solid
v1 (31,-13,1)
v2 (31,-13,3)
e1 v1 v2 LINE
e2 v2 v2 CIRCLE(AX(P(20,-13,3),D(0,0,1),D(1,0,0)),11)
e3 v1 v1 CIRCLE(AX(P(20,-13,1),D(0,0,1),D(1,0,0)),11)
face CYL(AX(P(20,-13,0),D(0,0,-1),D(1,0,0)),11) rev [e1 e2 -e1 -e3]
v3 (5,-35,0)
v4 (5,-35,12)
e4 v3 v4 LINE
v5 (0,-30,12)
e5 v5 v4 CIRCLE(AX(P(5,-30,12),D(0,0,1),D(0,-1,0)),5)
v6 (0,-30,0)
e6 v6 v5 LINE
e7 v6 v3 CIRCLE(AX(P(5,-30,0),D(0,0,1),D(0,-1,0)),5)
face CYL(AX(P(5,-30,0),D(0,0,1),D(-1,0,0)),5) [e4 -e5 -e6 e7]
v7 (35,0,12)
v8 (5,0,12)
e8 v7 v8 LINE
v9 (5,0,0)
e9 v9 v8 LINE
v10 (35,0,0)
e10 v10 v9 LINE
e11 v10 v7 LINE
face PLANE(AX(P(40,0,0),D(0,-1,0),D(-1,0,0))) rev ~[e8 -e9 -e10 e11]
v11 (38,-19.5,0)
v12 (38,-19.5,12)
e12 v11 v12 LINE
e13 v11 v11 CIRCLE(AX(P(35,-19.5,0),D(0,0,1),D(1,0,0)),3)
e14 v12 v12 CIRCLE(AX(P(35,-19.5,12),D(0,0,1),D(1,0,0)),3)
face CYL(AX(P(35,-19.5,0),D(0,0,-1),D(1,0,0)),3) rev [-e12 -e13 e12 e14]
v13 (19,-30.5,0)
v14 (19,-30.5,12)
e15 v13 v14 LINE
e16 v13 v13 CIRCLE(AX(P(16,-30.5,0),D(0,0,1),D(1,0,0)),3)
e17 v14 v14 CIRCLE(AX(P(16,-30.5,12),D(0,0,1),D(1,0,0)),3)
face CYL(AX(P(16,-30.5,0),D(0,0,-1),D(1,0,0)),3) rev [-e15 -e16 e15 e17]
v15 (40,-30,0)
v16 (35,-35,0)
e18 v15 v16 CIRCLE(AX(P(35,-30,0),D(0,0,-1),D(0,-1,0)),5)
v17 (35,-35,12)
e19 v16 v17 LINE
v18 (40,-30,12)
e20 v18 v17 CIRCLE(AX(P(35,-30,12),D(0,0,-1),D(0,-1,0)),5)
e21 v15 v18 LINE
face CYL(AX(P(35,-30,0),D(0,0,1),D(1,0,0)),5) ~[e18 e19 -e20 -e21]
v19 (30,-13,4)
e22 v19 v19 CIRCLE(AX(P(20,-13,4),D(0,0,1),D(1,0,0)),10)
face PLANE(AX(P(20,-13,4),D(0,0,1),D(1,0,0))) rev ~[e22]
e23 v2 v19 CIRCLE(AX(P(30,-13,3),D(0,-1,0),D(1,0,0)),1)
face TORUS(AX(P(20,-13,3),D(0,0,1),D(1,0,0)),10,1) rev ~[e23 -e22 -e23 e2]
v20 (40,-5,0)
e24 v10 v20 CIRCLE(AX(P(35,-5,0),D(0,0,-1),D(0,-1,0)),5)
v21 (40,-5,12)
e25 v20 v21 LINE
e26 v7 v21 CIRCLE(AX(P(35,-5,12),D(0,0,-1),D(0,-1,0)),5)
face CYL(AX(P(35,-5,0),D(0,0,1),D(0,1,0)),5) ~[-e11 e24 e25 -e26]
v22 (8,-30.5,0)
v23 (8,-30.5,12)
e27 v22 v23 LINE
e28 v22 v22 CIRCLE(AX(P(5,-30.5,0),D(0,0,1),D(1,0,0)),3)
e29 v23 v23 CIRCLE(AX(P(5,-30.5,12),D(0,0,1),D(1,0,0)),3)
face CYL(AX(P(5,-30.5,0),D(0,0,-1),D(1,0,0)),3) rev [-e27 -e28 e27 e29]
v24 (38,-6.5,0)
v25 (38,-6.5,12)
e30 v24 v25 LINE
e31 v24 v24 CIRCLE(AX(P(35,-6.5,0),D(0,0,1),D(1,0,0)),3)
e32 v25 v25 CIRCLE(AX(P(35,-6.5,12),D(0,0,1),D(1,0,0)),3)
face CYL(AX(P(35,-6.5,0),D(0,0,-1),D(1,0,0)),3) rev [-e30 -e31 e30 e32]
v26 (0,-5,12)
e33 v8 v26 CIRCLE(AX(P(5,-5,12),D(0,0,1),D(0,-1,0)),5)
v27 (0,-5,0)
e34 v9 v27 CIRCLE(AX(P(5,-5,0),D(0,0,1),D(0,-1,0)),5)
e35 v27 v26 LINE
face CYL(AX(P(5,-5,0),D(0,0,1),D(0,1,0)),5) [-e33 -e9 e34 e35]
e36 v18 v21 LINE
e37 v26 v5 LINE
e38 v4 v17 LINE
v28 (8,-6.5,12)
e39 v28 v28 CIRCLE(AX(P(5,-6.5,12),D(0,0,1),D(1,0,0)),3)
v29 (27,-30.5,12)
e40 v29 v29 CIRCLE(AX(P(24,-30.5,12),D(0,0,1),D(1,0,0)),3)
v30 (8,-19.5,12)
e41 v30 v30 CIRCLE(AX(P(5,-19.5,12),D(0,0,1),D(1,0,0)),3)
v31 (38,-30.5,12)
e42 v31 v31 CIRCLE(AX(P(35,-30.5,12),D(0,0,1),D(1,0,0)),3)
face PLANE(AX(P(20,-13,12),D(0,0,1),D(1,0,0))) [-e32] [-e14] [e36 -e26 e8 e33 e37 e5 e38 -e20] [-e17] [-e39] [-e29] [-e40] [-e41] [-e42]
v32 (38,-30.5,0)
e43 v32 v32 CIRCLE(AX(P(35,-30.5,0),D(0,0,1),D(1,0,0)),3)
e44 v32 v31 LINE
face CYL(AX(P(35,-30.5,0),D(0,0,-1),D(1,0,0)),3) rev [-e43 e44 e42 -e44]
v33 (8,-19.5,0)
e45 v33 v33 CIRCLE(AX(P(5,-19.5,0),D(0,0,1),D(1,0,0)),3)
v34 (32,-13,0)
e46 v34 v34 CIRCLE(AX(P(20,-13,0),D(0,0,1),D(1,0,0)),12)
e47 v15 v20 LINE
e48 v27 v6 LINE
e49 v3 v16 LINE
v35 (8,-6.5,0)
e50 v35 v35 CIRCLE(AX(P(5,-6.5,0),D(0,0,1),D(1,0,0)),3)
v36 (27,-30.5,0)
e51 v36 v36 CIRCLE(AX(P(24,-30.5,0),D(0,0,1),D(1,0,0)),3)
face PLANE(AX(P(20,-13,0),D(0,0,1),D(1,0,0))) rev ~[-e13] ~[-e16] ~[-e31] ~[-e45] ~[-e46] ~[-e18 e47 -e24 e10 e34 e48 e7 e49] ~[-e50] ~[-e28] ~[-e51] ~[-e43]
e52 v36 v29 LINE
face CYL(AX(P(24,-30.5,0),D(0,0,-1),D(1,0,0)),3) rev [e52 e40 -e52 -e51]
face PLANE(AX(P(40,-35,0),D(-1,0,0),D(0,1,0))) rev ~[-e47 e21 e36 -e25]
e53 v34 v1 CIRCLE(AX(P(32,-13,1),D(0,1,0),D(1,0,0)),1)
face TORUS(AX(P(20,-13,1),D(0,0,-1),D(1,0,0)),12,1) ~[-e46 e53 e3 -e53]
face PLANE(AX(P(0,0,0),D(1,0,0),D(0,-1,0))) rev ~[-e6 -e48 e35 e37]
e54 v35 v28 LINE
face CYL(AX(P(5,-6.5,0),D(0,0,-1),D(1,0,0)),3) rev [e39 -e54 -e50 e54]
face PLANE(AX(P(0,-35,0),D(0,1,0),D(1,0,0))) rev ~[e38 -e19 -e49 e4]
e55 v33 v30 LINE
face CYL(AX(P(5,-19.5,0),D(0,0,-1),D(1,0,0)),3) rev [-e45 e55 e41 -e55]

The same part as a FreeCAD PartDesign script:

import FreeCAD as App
import Part
import Sketcher
from FreeCAD import Vector


def edges_at(feature, points):
    """Names of the edges that pass closest to the given points."""
    edges = feature.Shape.Edges
    near = lambda p: min(range(len(edges)), key=lambda i: edges[i].distToShape(Part.Vertex(*p))[0])
    return sorted({f"Edge{near(p) + 1}" for p in points})


def add_polygon(sketch, points):
    """Adds a closed chain of lines whose ends are joined by coincident constraints."""
    first, n = sketch.GeometryCount, len(points)
    for a, b in zip(points, points[1:] + points[:1]):
        sketch.addGeometry(Part.LineSegment(App.Vector(*a, 0), App.Vector(*b, 0)), False)
    for i in range(n):
        sketch.addConstraint(Sketcher.Constraint("Coincident", first + i, 2, first + (i + 1) % n, 1))

doc = App.newDocument("Part")
body = doc.addObject("PartDesign::Body", "Body")

# Sketch on XY plane
sketch1 = body.newObject("Sketcher::SketchObject", "Sketch")
sketch1.AttachmentSupport = (doc.getObject("XY_Plane"), [""])
sketch1.MapMode = "FlatFace"
add_polygon(sketch1, [(40, 0), (0, 0), (0, -35), (40, -35)])  # lines 0-3
sketch1.addGeometry(Part.Circle(Vector(5, -30.5, 0), Vector(0, 0, 1), 3), False)  # 4
sketch1.addGeometry(Part.Circle(Vector(16, -30.5, 0), Vector(0, 0, 1), 3), False)  # 5
sketch1.addGeometry(Part.Circle(Vector(5, -19.5, 0), Vector(0, 0, 1), 3), False)  # 6
sketch1.addGeometry(Part.Circle(Vector(24, -30.5, 0), Vector(0, 0, 1), 3), False)  # 7
sketch1.addGeometry(Part.Circle(Vector(35, -30.5, 0), Vector(0, 0, 1), 3), False)  # 8
sketch1.addGeometry(Part.Circle(Vector(35, -19.5, 0), Vector(0, 0, 1), 3), False)  # 9
sketch1.addGeometry(Part.Circle(Vector(5, -6.5, 0), Vector(0, 0, 1), 3), False)  # 10
sketch1.addGeometry(Part.Circle(Vector(35, -6.5, 0), Vector(0, 0, 1), 3), False)  # 11
sketch1.addConstraint(Sketcher.Constraint("Horizontal", 0))
sketch1.addConstraint(Sketcher.Constraint("Vertical", 1))
sketch1.addConstraint(Sketcher.Constraint("Horizontal", 2))
sketch1.addConstraint(Sketcher.Constraint("Vertical", 3))
sketch1.addConstraint(Sketcher.Constraint("Coincident", 0, 2, -1, 1))
sketch1.addConstraint(Sketcher.Constraint("Equal", 4, 5))
sketch1.addConstraint(Sketcher.Constraint("Equal", 5, 6))
sketch1.addConstraint(Sketcher.Constraint("Equal", 6, 7))
sketch1.addConstraint(Sketcher.Constraint("Equal", 7, 8))
sketch1.addConstraint(Sketcher.Constraint("Equal", 8, 9))
sketch1.addConstraint(Sketcher.Constraint("Equal", 9, 10))
sketch1.addConstraint(Sketcher.Constraint("Equal", 10, 11))
sketch1.addConstraint(Sketcher.Constraint("Horizontal", 4, 3, 5, 3))
sketch1.addConstraint(Sketcher.Constraint("Horizontal", 5, 3, 7, 3))
sketch1.addConstraint(Sketcher.Constraint("Horizontal", 7, 3, 8, 3))
sketch1.addConstraint(Sketcher.Constraint("Horizontal", 6, 3, 9, 3))
sketch1.addConstraint(Sketcher.Constraint("Horizontal", 10, 3, 11, 3))
sketch1.addConstraint(Sketcher.Constraint("Vertical", 4, 3, 6, 3))
sketch1.addConstraint(Sketcher.Constraint("Vertical", 8, 3, 9, 3))
sketch1.addConstraint(Sketcher.Constraint("Vertical", 6, 3, 10, 3))
sketch1.addConstraint(Sketcher.Constraint("Vertical", 9, 3, 11, 3))
sketch1.addConstraint(Sketcher.Constraint("Diameter", 4, 6.0))
sketch1.addConstraint(Sketcher.Constraint("DistanceX", 0, 2, 0, 1, 40.0))
sketch1.addConstraint(Sketcher.Constraint("DistanceY", 1, 2, 1, 1, 35.0))
sketch1.addConstraint(Sketcher.Constraint("DistanceX", -1, 1, 4, 3, 5.0))
sketch1.addConstraint(Sketcher.Constraint("DistanceX", -1, 1, 5, 3, 16.0))
sketch1.addConstraint(Sketcher.Constraint("DistanceX", -1, 1, 7, 3, 24.0))
sketch1.addConstraint(Sketcher.Constraint("DistanceX", -1, 1, 8, 3, 35.0))
sketch1.addConstraint(Sketcher.Constraint("DistanceY", 4, 3, 6, 3, 11.0))
sketch1.addConstraint(Sketcher.Constraint("DistanceY", 6, 3, 10, 3, 13.0))
sketch1.addConstraint(Sketcher.Constraint("DistanceY", 4, 3, -1, 1, 30.5))
pad1 = body.newObject("PartDesign::Pad", "Pad")
pad1.Profile = sketch1
pad1.Length = 12

# Sketch on XY plane
sketch2 = body.newObject("Sketcher::SketchObject", "Sketch001")
sketch2.AttachmentSupport = (doc.getObject("XY_Plane"), [""])
sketch2.MapMode = "FlatFace"
sketch2.addGeometry(Part.Circle(Vector(20, -13, 0), Vector(0, 0, 1), 11), False)
sketch2.addConstraint(Sketcher.Constraint("Diameter", 0, 22.0))
sketch2.addConstraint(Sketcher.Constraint("DistanceX", -1, 1, 0, 3, 20.0))
sketch2.addConstraint(Sketcher.Constraint("DistanceY", 0, 3, -1, 1, 13.0))
pocket1 = body.newObject("PartDesign::Pocket", "Pocket")
pocket1.Profile = sketch2
pocket1.Length = 4
pocket1.Reversed = True
doc.recompute()

fillet = body.newObject("PartDesign::Fillet", "Fillet")
fillet.Base = (pocket1, edges_at(pocket1, [
    (40, -35, 6),
    (0, -35, 6),
    (0, 0, 6),
    (40, 0, 6),
]))
fillet.Radius = 5
doc.recompute()

fillet2 = body.newObject("PartDesign::Fillet", "Fillet001")
fillet2.Base = (fillet, edges_at(fillet, [(9, -13, 4), (9, -13, 0)]))
fillet2.Radius = 1

doc.recompute()
